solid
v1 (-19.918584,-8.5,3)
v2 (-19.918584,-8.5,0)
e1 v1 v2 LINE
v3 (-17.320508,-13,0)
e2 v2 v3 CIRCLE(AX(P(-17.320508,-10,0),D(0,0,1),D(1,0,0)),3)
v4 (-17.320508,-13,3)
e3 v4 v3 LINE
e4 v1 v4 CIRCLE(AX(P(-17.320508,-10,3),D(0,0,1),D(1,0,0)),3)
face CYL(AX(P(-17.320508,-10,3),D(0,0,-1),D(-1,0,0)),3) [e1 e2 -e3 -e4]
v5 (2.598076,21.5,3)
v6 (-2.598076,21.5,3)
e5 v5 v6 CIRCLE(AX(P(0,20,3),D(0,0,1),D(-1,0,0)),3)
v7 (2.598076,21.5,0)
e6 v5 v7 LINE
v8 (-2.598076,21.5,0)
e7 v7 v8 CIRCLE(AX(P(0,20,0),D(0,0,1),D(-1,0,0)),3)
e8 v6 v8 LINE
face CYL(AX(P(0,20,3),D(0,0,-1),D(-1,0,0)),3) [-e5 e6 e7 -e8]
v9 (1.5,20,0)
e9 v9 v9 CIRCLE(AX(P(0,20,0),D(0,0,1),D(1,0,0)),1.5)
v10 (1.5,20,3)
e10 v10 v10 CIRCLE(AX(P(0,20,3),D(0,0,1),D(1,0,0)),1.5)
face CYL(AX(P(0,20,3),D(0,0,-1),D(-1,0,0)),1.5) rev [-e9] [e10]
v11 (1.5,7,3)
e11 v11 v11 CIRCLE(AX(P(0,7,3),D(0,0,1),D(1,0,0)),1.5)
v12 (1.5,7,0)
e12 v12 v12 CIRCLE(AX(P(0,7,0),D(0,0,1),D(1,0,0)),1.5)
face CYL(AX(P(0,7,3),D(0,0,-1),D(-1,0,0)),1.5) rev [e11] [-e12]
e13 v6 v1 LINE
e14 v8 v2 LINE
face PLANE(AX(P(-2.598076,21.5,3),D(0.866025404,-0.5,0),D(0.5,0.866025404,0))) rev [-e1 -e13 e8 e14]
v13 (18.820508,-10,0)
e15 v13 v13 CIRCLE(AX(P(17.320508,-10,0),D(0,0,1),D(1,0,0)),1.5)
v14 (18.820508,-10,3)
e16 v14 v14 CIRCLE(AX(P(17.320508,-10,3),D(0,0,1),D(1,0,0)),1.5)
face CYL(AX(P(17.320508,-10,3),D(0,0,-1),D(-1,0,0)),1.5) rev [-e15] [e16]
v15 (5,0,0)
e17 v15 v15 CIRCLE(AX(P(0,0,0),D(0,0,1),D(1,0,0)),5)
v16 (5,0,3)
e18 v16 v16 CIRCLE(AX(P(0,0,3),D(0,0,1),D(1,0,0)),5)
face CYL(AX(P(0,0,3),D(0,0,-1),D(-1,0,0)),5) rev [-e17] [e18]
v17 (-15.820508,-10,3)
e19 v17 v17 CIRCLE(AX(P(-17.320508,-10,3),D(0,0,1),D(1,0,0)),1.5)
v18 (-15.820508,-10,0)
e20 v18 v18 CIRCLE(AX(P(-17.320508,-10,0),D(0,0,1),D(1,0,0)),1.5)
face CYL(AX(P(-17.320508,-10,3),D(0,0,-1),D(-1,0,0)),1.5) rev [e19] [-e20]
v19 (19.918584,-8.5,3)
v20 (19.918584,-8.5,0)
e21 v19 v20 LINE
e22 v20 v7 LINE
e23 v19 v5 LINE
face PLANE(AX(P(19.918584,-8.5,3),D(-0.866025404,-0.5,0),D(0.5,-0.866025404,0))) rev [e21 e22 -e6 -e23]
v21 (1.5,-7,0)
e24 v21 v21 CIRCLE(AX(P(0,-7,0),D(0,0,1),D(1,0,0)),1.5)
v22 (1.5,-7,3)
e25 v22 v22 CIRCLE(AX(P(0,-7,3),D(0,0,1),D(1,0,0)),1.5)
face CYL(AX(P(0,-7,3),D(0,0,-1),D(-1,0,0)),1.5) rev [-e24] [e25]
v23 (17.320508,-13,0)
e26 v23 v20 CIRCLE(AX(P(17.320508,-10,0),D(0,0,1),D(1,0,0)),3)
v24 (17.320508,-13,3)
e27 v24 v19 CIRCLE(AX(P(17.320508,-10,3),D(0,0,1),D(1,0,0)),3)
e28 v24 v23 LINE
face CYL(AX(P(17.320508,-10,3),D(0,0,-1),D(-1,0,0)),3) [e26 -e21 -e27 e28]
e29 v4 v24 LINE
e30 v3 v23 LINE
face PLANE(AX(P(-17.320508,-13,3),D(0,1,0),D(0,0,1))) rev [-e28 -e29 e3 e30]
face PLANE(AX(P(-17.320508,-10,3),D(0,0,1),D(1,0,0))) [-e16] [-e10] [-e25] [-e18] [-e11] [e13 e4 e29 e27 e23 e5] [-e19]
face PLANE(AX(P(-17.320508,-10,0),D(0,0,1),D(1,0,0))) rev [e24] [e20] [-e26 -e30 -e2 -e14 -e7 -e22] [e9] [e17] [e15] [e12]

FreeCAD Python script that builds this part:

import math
import FreeCAD as App
import Part
import Sketcher

V = App.Vector
Q = App.Units.Quantity

doc = App.newDocument("Part")
body = doc.addObject("PartDesign::Body", "Body")

sketch1 = body.newObject("Sketcher::SketchObject", "Sketch")
sketch1.AttachmentSupport = (doc.getObject("XY_Plane"), [""])
sketch1.MapMode = "FlatFace"
sketch1.addGeometry([
    Part.LineSegment(V(-2.6, 21.5, 0), V(-19.9, -8.5, 0)),
    Part.ArcOfCircle(Part.Circle(V(-17.3, -10, 0), V(0, 0, 1), 3), math.radians(150), math.radians(270)),
    Part.LineSegment(V(-17.3, -13, 0), V(17.3, -13, 0)),
    Part.ArcOfCircle(Part.Circle(V(17.3, -10, 0), V(0, 0, 1), 3), math.radians(-90), math.radians(30)),
    Part.LineSegment(V(19.9, -8.5, 0), V(2.6, 21.5, 0)),
    Part.ArcOfCircle(Part.Circle(V(0, 20, 0), V(0, 0, 1), 3), math.radians(30), math.radians(150)),
    Part.Circle(V(-17.3, -10, 0), V(0, 0, 1), 1.5),
    Part.Circle(V(0, -7, 0), V(0, 0, 1), 1.5),
    Part.Circle(V(17.3, -10, 0), V(0, 0, 1), 1.5),
    Part.Circle(V(0, 0, 0), V(0, 0, 1), 5),
    Part.Circle(V(0, 7, 0), V(0, 0, 1), 1.5),
    Part.Circle(V(0, 20, 0), V(0, 0, 1), 1.5),
], False)
sketch1.addConstraint([
    Sketcher.Constraint("Tangent", 0, 2, 1, 1),
    Sketcher.Constraint("Tangent", 1, 2, 2, 1),
    Sketcher.Constraint("Tangent", 2, 2, 3, 1),
    Sketcher.Constraint("Tangent", 3, 2, 4, 1),
    Sketcher.Constraint("Tangent", 4, 2, 5, 1),
    Sketcher.Constraint("Tangent", 5, 2, 0, 1),
    Sketcher.Constraint("Horizontal", 2),
    Sketcher.Constraint("Coincident", 9, 3, -1, 1),
    Sketcher.Constraint("Coincident", 6, 3, 1, 3),
    Sketcher.Constraint("Coincident", 8, 3, 3, 3),
    Sketcher.Constraint("Coincident", 11, 3, 5, 3),
    Sketcher.Constraint("Equal", 1, 3),
    Sketcher.Constraint("Equal", 3, 5),
    Sketcher.Constraint("Equal", 6, 7),
    Sketcher.Constraint("Equal", 7, 8),
    Sketcher.Constraint("Equal", 8, 10),
    Sketcher.Constraint("Equal", 10, 11),
    Sketcher.Constraint("Symmetric", 7, 3, 10, 3, -1, 1),
    Sketcher.Constraint("Symmetric", 0, 2, 3, 2, -2),
    Sketcher.Constraint("PointOnObject", 7, 3, -2),
    Sketcher.Constraint("Diameter", 6, 3.0),
    Sketcher.Constraint("Diameter", 9, 10.0),
    Sketcher.Constraint("Radius", 1, 3.0),
    Sketcher.Constraint("Angle", 0, Q("-120 deg")),
    Sketcher.Constraint("DistanceY", 1, 3, -1, 1, 10.0),
    Sketcher.Constraint("DistanceY", -1, 1, 5, 3, 20.0),
    Sketcher.Constraint("DistanceY", 7, 3, -1, 1, 7.0),
])
pad1 = body.newObject("PartDesign::Pad", "Pad")
pad1.Profile = sketch1
pad1.Length = 3

doc.recompute()
